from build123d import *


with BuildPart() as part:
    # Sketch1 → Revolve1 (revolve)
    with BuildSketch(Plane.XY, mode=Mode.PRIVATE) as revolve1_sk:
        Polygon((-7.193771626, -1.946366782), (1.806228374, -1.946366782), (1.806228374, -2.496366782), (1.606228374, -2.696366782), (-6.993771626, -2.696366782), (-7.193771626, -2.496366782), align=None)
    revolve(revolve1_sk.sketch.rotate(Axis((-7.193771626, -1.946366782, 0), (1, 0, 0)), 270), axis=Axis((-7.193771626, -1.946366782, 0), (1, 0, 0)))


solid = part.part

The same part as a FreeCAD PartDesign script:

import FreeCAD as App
import Part
import Sketcher
from FreeCAD import Vector

doc = App.newDocument("Part")
params = doc.addObject("Spreadsheet::Sheet", "Params")
for row, (alias, value) in enumerate([
    ("sketch1_width", "9 mm"),
    ("sketch1_width2", "8.6 mm"),
    ("sketch1_height", "0.55 mm"),
    ("revolution_angle", "360 deg"),
], start=1):
    params.set(f"A{row}", alias)
    params.set(f"B{row}", "=" + value)
    params.setAlias(f"B{row}", alias)

body = doc.addObject("PartDesign::Body", "Body")

sketch1 = doc.addObject("Sketcher::SketchObject", "Sketch")
body.addObject(sketch1)
sketch1.AttachmentSupport = (doc.XY_Plane, [""])
sketch1.MapMode = "FlatFace"
sketch1.addGeometry(Part.LineSegment(Vector(1.81, -1.95, 0), Vector(-7.19, -1.95, 0)), False)
sketch1.addGeometry(Part.LineSegment(Vector(-7.19, -1.95, 0), Vector(-7.19, -2.5, 0)), False)
sketch1.addGeometry(Part.LineSegment(Vector(-7.19, -2.5, 0), Vector(-6.99, -2.7, 0)), False)
sketch1.addGeometry(Part.LineSegment(Vector(-6.99, -2.7, 0), Vector(1.61, -2.7, 0)), False)
sketch1.addGeometry(Part.LineSegment(Vector(1.61, -2.7, 0), Vector(1.81, -2.5, 0)), False)
sketch1.addGeometry(Part.LineSegment(Vector(1.81, -2.5, 0), Vector(1.81, -1.95, 0)), False)
sketch1.addGeometry(Part.LineSegment(Vector(-7.19, -1.95, 0), Vector(1.81, -1.95, 0)), True)
sketch1.addConstraint(Sketcher.Constraint("Coincident", 0, 2, 1, 1))
sketch1.addConstraint(Sketcher.Constraint("Coincident", 1, 2, 2, 1))
sketch1.addConstraint(Sketcher.Constraint("Coincident", 2, 2, 3, 1))
sketch1.addConstraint(Sketcher.Constraint("Coincident", 3, 2, 4, 1))
sketch1.addConstraint(Sketcher.Constraint("Coincident", 4, 2, 5, 1))
sketch1.addConstraint(Sketcher.Constraint("Coincident", 5, 2, 0, 1))
sketch1.addConstraint(Sketcher.Constraint("Horizontal", 0))
sketch1.addConstraint(Sketcher.Constraint("Vertical", 1))
sketch1.addConstraint(Sketcher.Constraint("Horizontal", 3))
sketch1.addConstraint(Sketcher.Constraint("Vertical", 5))
sketch1.addConstraint(Sketcher.Constraint("Horizontal", 6))
sketch1.addConstraint(Sketcher.Constraint("Coincident", 6, 1, 0, 2))
sketch1.addConstraint(Sketcher.Constraint("Perpendicular", 2, 4))
sketch1.addConstraint(Sketcher.Constraint("Horizontal", 1, 2, 4, 2))
sketch1.addConstraint(Sketcher.Constraint("Vertical", 4, 2, 6, 2))
sketch1.addConstraint(Sketcher.Constraint("Equal", 2, 4))
sketch1.addConstraint(Sketcher.Constraint("DistanceX", 0, 2, 0, 1, 9.0))
sketch1.addConstraint(Sketcher.Constraint("DistanceX", 3, 1, 3, 2, 8.6))
sketch1.addConstraint(Sketcher.Constraint("DistanceY", 1, 2, 1, 1, 0.55))
sketch1.addConstraint(Sketcher.Constraint("DistanceX", 0, 2, -1, 1, 7.193772))
sketch1.addConstraint(Sketcher.Constraint("DistanceY", 0, 2, -1, 1, 1.946367))
sketch1.setExpression("Constraints[16]", "Params.sketch1_width")
sketch1.setExpression("Constraints[17]", "Params.sketch1_width2")
sketch1.setExpression("Constraints[18]", "Params.sketch1_height")
revolution = doc.addObject("PartDesign::Revolution", "Revolution")
body.addObject(revolution)
revolution.Profile = sketch1
revolution.ReferenceAxis = (sketch1, ["Axis0"])
revolution.setExpression("Angle", "Params.revolution_angle")

doc.recompute()
